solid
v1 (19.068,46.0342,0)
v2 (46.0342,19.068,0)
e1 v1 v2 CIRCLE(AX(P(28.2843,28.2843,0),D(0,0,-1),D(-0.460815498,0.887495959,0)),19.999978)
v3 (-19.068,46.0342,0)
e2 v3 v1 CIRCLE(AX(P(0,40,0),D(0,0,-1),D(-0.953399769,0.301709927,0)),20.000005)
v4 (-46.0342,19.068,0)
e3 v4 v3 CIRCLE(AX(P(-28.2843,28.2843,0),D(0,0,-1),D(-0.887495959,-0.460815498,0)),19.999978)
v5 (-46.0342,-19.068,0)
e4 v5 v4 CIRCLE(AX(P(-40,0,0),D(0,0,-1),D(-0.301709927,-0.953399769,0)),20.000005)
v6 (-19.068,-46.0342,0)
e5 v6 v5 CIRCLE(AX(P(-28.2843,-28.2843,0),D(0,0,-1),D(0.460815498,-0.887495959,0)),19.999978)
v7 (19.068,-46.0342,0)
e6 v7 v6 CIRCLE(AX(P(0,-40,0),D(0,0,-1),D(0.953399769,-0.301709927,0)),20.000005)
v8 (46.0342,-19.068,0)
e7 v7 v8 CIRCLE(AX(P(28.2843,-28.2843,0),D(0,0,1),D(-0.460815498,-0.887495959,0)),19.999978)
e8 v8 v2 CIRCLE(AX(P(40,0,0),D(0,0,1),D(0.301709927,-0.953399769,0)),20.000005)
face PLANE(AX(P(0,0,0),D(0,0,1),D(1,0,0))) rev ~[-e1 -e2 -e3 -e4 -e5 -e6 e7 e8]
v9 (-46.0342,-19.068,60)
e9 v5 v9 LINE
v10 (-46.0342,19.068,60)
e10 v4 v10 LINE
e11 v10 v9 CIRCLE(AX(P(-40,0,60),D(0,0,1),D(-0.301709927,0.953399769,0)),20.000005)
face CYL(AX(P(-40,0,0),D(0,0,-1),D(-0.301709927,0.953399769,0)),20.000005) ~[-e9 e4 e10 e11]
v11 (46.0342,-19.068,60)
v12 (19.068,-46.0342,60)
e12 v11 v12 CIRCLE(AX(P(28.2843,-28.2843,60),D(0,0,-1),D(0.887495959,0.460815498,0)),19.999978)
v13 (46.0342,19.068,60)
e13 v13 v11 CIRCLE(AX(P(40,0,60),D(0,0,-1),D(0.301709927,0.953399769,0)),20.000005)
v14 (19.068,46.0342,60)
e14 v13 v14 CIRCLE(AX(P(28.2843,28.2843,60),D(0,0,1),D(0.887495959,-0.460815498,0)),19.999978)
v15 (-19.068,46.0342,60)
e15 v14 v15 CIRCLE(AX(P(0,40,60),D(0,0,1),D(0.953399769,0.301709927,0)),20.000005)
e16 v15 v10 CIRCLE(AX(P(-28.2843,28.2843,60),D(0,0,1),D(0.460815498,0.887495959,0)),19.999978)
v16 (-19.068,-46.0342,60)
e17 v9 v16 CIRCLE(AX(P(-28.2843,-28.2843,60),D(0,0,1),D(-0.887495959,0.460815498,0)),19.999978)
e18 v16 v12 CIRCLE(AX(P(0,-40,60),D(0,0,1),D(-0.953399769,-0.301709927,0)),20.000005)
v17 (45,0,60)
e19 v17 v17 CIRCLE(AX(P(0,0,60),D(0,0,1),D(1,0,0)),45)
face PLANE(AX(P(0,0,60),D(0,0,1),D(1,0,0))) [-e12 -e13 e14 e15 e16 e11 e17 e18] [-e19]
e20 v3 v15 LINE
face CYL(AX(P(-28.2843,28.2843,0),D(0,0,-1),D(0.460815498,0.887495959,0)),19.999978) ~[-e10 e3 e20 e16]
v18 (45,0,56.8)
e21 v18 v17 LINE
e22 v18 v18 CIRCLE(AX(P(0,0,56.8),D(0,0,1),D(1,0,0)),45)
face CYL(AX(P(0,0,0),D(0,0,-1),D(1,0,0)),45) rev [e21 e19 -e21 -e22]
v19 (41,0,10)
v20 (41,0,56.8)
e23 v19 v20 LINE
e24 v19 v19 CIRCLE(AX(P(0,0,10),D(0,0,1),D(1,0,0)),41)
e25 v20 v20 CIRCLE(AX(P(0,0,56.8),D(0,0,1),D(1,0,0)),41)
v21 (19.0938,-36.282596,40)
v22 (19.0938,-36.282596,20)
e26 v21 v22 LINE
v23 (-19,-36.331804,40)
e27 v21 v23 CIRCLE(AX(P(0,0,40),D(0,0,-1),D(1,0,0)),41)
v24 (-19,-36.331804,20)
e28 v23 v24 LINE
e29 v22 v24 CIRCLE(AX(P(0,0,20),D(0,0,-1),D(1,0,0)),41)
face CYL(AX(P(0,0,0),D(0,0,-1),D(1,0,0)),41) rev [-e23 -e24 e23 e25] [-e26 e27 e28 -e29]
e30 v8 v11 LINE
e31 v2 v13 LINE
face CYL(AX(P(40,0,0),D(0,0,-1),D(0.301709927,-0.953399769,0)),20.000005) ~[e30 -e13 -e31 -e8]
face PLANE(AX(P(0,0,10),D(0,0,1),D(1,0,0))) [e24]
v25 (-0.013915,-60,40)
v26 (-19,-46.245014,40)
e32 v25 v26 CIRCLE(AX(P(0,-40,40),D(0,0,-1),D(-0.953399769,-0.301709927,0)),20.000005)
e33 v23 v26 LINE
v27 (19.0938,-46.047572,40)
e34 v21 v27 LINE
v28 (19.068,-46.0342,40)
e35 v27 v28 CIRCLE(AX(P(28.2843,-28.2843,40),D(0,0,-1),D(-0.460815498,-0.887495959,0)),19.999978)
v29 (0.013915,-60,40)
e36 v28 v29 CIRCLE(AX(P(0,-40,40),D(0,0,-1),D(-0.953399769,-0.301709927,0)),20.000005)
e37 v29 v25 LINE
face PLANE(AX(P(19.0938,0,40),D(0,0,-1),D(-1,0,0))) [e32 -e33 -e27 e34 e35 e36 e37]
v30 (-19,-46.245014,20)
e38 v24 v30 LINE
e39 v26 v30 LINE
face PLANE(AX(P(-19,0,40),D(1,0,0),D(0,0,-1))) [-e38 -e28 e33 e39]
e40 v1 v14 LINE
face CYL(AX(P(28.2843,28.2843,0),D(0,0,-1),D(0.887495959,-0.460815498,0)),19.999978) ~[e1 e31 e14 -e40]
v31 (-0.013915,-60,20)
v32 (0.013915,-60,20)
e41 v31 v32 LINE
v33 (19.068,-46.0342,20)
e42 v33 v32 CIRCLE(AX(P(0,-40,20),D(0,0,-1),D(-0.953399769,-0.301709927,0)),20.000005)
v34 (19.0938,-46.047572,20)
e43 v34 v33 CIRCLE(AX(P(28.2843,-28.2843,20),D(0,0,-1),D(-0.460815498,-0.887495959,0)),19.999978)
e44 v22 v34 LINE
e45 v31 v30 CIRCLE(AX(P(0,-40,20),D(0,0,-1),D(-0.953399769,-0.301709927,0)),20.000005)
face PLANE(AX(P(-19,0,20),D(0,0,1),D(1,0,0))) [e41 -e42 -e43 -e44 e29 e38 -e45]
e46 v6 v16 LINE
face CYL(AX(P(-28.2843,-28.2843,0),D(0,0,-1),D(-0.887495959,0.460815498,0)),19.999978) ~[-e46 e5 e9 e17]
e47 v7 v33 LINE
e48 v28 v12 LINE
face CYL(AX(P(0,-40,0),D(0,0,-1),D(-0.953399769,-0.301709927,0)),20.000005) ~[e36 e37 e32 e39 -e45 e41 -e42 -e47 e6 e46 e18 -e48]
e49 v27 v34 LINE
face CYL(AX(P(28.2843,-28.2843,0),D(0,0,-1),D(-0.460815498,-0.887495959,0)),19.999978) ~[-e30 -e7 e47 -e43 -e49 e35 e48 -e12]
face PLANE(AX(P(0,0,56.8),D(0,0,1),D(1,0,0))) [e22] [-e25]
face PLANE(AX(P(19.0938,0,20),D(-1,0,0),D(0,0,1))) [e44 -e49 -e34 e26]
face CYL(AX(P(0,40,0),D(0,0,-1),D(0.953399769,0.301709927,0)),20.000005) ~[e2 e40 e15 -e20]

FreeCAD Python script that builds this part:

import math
import FreeCAD as App
import Part
import Sketcher

V = App.Vector

doc = App.newDocument("Part")
body = doc.addObject("PartDesign::Body", "Body")

sketch1 = body.newObject("Sketcher::SketchObject", "Sketch")
sketch1.AttachmentSupport = (doc.getObject("XY_Plane"), [""])
sketch1.MapMode = "FlatFace"
sketch1.addGeometry(Part.Circle(V(0, 0, 0), V(0, 0, 1), 41), False)
sketch1.addConstraint(Sketcher.Constraint("Coincident", 0, 3, -1, 1))
sketch1.addConstraint(Sketcher.Constraint("Diameter", 0, 82.0))
pad1 = body.newObject("PartDesign::Pad", "Pad")
pad1.Profile = sketch1
pad1.Length = 10

sketch2 = body.newObject("Sketcher::SketchObject", "Sketch001")
sketch2.AttachmentSupport = (doc.getObject("XY_Plane"), [""])
sketch2.MapMode = "FlatFace"
sketch2.addGeometry(Part.Circle(V(0, 0, 0), V(0, 0, 1), 45), False)
sketch2.addGeometry(Part.Circle(V(0, 0, 0), V(0, 0, 1), 41), False)
sketch2.addConstraint(Sketcher.Constraint("Coincident", 0, 3, -1, 1))
sketch2.addConstraint(Sketcher.Constraint("Coincident", 1, 3, -1, 1))
sketch2.addConstraint(Sketcher.Constraint("Diameter", 0, 90.0))
sketch2.addConstraint(Sketcher.Constraint("Diameter", 1, 82.0))
pad2 = body.newObject("PartDesign::Pad", "Pad001")
pad2.Profile = sketch2
pad2.Length = 56.8

sketch3 = body.newObject("Sketcher::SketchObject", "Sketch002")
sketch3.AttachmentSupport = (doc.getObject("XY_Plane"), [""])
sketch3.MapMode = "FlatFace"
sketch3.addGeometry(Part.ArcOfCircle(Part.Circle(V(40, 0, 0), V(0, 0, 1), 20), math.radians(-72), math.radians(72)), False)
sketch3.addGeometry(Part.ArcOfCircle(Part.Circle(V(28, 28, 0), V(0, 0, 1), 20), math.radians(-27), math.radians(117)), False)
sketch3.addGeometry(Part.ArcOfCircle(Part.Circle(V(0, 40, 0), V(0, 0, 1), 20), math.radians(18), math.radians(162)), False)
sketch3.addGeometry(Part.ArcOfCircle(Part.Circle(V(-28, 28, 0), V(0, 0, 1), 20), math.radians(63), math.radians(207)), False)
sketch3.addGeometry(Part.ArcOfCircle(Part.Circle(V(-40, 0, 0), V(0, 0, 1), 20), math.radians(108), math.radians(252)), False)
sketch3.addGeometry(Part.ArcOfCircle(Part.Circle(V(-28, -28, 0), V(0, 0, 1), 20), math.radians(153), math.radians(297)), False)
sketch3.addGeometry(Part.ArcOfCircle(Part.Circle(V(0, -40, 0), V(0, 0, 1), 20), math.radians(-162), math.radians(-18)), False)
sketch3.addGeometry(Part.ArcOfCircle(Part.Circle(V(28, -28, 0), V(0, 0, 1), 20), math.radians(-117), math.radians(27)), False)
sketch3.addGeometry(Part.Circle(V(0, 0, 0), V(0, 0, 1), 45), False)
sketch3.addConstraint(Sketcher.Constraint("Coincident", 0, 2, 1, 1))
sketch3.addConstraint(Sketcher.Constraint("Coincident", 1, 2, 2, 1))
sketch3.addConstraint(Sketcher.Constraint("Coincident", 2, 2, 3, 1))
sketch3.addConstraint(Sketcher.Constraint("Coincident", 3, 2, 4, 1))
sketch3.addConstraint(Sketcher.Constraint("Coincident", 4, 2, 5, 1))
sketch3.addConstraint(Sketcher.Constraint("Coincident", 5, 2, 6, 1))
sketch3.addConstraint(Sketcher.Constraint("Coincident", 6, 2, 7, 1))
sketch3.addConstraint(Sketcher.Constraint("Coincident", 7, 2, 0, 1))
sketch3.addConstraint(Sketcher.Constraint("Coincident", 8, 3, -1, 1))
sketch3.addConstraint(Sketcher.Constraint("Equal", 0, 1))
sketch3.addConstraint(Sketcher.Constraint("Equal", 1, 2))
sketch3.addConstraint(Sketcher.Constraint("Equal", 2, 3))
sketch3.addConstraint(Sketcher.Constraint("Equal", 3, 4))
sketch3.addConstraint(Sketcher.Constraint("Equal", 4, 5))
sketch3.addConstraint(Sketcher.Constraint("Equal", 5, 6))
sketch3.addConstraint(Sketcher.Constraint("Equal", 6, 7))
sketch3.addConstraint(Sketcher.Constraint("Symmetric", 0, 3, 4, 3, -1, 1))
sketch3.addConstraint(Sketcher.Constraint("Symmetric", 1, 3, 5, 3, -1, 1))
sketch3.addConstraint(Sketcher.Constraint("Symmetric", 2, 3, 6, 3, -1, 1))
sketch3.addConstraint(Sketcher.Constraint("Symmetric", 3, 3, 7, 3, -1, 1))
sketch3.addConstraint(Sketcher.Constraint("Symmetric", 1, 3, 3, 3, -2))
sketch3.addConstraint(Sketcher.Constraint("PointOnObject", 0, 3, -1))
sketch3.addConstraint(Sketcher.Constraint("PointOnObject", 2, 3, -2))
sketch3.addConstraint(Sketcher.Constraint("Diameter", 8, 90.0))
sketch3.addConstraint(Sketcher.Constraint("Radius", 0, 20.0))
sketch3.addConstraint(Sketcher.Constraint("DistanceX", -1, 1, 0, 3, 40.0))
sketch3.addConstraint(Sketcher.Constraint("DistanceY", -1, 1, 2, 3, 40.0))
sketch3.addConstraint(Sketcher.Constraint("DistanceX", 1, 3, 0, 2, 17.75))
sketch3.addConstraint(Sketcher.Constraint("DistanceY", 1, 3, 1, 2, 17.75))
pad3 = body.newObject("PartDesign::Pad", "Pad002")
pad3.Profile = sketch3
pad3.Length = 60

sketch4 = body.newObject("Sketcher::SketchObject", "Sketch003")
sketch4.AttachmentSupport = (doc.getObject("XZ_Plane"), [""])
sketch4.MapMode = "FlatFace"
sketch4.addGeometry(Part.LineSegment(V(19, 20, 0), V(-19, 20, 0)), False)
sketch4.addGeometry(Part.LineSegment(V(-19, 20, 0), V(-19, 40, 0)), False)
sketch4.addGeometry(Part.LineSegment(V(-19, 40, 0), V(19, 40, 0)), False)
sketch4.addGeometry(Part.LineSegment(V(19, 40, 0), V(19, 20, 0)), False)
sketch4.addConstraint(Sketcher.Constraint("Coincident", 0, 2, 1, 1))
sketch4.addConstraint(Sketcher.Constraint("Coincident", 1, 2, 2, 1))
sketch4.addConstraint(Sketcher.Constraint("Coincident", 2, 2, 3, 1))
sketch4.addConstraint(Sketcher.Constraint("Coincident", 3, 2, 0, 1))
sketch4.addConstraint(Sketcher.Constraint("Horizontal", 0))
sketch4.addConstraint(Sketcher.Constraint("Vertical", 1))
sketch4.addConstraint(Sketcher.Constraint("Horizontal", 2))
sketch4.addConstraint(Sketcher.Constraint("Vertical", 3))
sketch4.addConstraint(Sketcher.Constraint("DistanceY", 1, 1, 1, 2, 20.0))
sketch4.addConstraint(Sketcher.Constraint("DistanceY", -1, 1, 0, 2, 20.0))
sketch4.addConstraint(Sketcher.Constraint("DistanceX", 0, 2, -1, 1, 19.0))
sketch4.addConstraint(Sketcher.Constraint("DistanceX", 0, 2, 0, 1, 38.0938))
pocket1 = body.newObject("PartDesign::Pocket", "Pocket")
pocket1.Profile = sketch4
pocket1.Length = 60
pocket1.Reversed = True

doc.recompute()
